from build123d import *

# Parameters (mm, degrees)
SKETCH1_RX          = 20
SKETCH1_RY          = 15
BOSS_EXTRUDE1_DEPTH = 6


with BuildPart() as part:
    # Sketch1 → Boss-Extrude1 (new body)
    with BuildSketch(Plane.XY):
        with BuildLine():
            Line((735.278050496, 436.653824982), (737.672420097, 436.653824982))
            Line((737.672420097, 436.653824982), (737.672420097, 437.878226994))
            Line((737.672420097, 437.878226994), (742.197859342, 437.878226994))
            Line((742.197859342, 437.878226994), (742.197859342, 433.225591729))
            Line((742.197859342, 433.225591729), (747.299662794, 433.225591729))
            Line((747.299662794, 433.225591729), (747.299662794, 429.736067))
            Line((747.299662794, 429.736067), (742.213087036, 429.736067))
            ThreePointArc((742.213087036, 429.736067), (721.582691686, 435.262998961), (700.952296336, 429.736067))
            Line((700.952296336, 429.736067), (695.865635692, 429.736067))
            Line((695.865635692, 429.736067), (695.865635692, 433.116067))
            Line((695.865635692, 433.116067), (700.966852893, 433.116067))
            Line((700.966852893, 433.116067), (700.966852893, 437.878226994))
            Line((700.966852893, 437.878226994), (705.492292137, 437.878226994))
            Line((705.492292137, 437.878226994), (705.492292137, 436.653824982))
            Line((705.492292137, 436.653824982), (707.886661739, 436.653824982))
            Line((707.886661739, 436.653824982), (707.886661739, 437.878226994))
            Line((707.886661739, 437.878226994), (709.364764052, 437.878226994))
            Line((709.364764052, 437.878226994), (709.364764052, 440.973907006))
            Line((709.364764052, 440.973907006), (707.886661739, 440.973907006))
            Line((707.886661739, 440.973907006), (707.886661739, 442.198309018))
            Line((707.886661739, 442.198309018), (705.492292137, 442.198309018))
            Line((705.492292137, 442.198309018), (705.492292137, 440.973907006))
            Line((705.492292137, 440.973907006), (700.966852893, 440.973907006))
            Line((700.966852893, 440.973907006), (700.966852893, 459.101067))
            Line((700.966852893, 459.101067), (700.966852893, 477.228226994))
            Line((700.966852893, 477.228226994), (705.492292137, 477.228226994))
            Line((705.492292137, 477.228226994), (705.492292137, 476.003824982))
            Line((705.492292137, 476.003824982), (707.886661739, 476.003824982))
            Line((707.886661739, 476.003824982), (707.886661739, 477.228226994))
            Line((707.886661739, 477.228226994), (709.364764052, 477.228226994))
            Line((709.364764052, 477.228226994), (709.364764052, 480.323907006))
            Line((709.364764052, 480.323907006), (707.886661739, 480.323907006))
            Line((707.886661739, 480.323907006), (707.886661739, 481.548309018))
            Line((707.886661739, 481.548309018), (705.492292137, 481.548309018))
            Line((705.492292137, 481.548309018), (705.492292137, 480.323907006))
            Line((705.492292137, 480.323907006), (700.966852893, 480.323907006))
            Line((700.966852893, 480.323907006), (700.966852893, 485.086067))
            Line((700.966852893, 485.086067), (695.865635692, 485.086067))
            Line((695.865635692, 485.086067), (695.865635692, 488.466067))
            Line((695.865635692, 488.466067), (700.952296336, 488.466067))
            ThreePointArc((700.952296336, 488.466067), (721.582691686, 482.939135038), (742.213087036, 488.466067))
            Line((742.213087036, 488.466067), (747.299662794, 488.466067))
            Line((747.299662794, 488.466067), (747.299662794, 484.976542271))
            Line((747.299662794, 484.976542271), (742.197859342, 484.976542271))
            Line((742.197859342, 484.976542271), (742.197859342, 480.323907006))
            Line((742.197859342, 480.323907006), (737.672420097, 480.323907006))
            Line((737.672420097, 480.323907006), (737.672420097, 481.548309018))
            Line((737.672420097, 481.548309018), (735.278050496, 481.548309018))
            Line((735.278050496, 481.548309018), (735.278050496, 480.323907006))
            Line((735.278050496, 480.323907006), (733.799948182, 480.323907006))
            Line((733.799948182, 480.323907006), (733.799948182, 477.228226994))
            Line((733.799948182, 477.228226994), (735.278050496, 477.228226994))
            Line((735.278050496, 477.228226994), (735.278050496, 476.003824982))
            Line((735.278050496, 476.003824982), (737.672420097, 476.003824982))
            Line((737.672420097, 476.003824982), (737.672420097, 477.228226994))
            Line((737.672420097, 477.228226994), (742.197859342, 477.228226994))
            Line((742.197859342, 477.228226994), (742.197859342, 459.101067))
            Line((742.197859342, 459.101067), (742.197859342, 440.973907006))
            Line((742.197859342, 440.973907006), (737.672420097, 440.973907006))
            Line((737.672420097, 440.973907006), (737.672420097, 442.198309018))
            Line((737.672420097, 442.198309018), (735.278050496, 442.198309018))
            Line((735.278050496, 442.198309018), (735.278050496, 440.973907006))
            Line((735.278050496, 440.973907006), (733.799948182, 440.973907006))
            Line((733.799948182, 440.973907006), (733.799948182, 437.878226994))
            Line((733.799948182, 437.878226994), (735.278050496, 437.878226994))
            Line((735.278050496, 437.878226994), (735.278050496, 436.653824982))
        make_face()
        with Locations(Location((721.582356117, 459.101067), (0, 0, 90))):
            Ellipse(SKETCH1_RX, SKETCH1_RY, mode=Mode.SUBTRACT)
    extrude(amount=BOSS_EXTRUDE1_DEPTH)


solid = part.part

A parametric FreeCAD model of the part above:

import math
import FreeCAD as App
import Part
import Sketcher
Q = App.Units.Quantity

doc = App.newDocument("Part")
params = doc.addObject("Spreadsheet::Sheet", "Params")
for row, (alias, value) in enumerate([
    ("sketch1_height", "3.38 mm"),
    ("pad1_length", "6 mm"),
], start=1):
    params.set(f"A{row}", alias)
    params.set(f"B{row}", "=" + value)
    params.setAlias(f"B{row}", alias)

body = doc.addObject("PartDesign::Body", "Body")

sketch1 = body.newObject("Sketcher::SketchObject", "Sketch")
sketch1.AttachmentSupport = (doc.getObject("XY_Plane"), [""])
sketch1.MapMode = "FlatFace"
sketch1.addGeometry([
    Part.LineSegment(App.Vector(737.67242, 436.653825, 0), App.Vector(735.27805, 436.653825, 0)),
    Part.LineSegment(App.Vector(735.27805, 436.653825, 0), App.Vector(735.27805, 437.878227, 0)),
    Part.LineSegment(App.Vector(735.27805, 437.878227, 0), App.Vector(733.799948, 437.878227, 0)),
    Part.LineSegment(App.Vector(733.799948, 437.878227, 0), App.Vector(733.799948, 440.973907, 0)),
    Part.LineSegment(App.Vector(733.799948, 440.973907, 0), App.Vector(735.27805, 440.973907, 0)),
    Part.LineSegment(App.Vector(735.27805, 440.973907, 0), App.Vector(735.27805, 442.198309, 0)),
    Part.LineSegment(App.Vector(735.27805, 442.198309, 0), App.Vector(737.67242, 442.198309, 0)),
    Part.LineSegment(App.Vector(737.67242, 442.198309, 0), App.Vector(737.67242, 440.973907, 0)),
    Part.LineSegment(App.Vector(737.67242, 440.973907, 0), App.Vector(742.197859, 440.973907, 0)),
    Part.LineSegment(App.Vector(742.197859, 440.973907, 0), App.Vector(742.197859, 477.228227, 0)),
    Part.LineSegment(App.Vector(742.197859, 477.228227, 0), App.Vector(737.67242, 477.228227, 0)),
    Part.LineSegment(App.Vector(737.67242, 477.228227, 0), App.Vector(737.67242, 476.003825, 0)),
    Part.LineSegment(App.Vector(737.67242, 476.003825, 0), App.Vector(735.27805, 476.003825, 0)),
    Part.LineSegment(App.Vector(735.27805, 476.003825, 0), App.Vector(735.27805, 477.228227, 0)),
    Part.LineSegment(App.Vector(735.27805, 477.228227, 0), App.Vector(733.799948, 477.228227, 0)),
    Part.LineSegment(App.Vector(733.799948, 477.228227, 0), App.Vector(733.799948, 480.323907, 0)),
    Part.LineSegment(App.Vector(733.799948, 480.323907, 0), App.Vector(735.27805, 480.323907, 0)),
    Part.LineSegment(App.Vector(735.27805, 480.323907, 0), App.Vector(735.27805, 481.548309, 0)),
    Part.LineSegment(App.Vector(735.27805, 481.548309, 0), App.Vector(737.67242, 481.548309, 0)),
    Part.LineSegment(App.Vector(737.67242, 481.548309, 0), App.Vector(737.67242, 480.323907, 0)),
    Part.LineSegment(App.Vector(737.67242, 480.323907, 0), App.Vector(742.197859, 480.323907, 0)),
    Part.LineSegment(App.Vector(742.197859, 480.323907, 0), App.Vector(742.197859, 484.976542, 0)),
    Part.LineSegment(App.Vector(742.197859, 484.976542, 0), App.Vector(747.299663, 484.976542, 0)),
    Part.LineSegment(App.Vector(747.299663, 484.976542, 0), App.Vector(747.299663, 488.466067, 0)),
    Part.LineSegment(App.Vector(747.299663, 488.466067, 0), App.Vector(742.213087, 488.466067, 0)),
    Part.ArcOfCircle(Part.Circle(App.Vector(721.582692, 524.20617, 0), App.Vector(0, 0, 1), 41.267035), math.radians(-119.994995), math.radians(-60.005005)),
    Part.LineSegment(App.Vector(700.952296, 488.466067, 0), App.Vector(695.865636, 488.466067, 0)),
    Part.LineSegment(App.Vector(695.865636, 488.466067, 0), App.Vector(695.865636, 485.086067, 0)),
    Part.LineSegment(App.Vector(695.865636, 485.086067, 0), App.Vector(700.966853, 485.086067, 0)),
    Part.LineSegment(App.Vector(700.966853, 485.086067, 0), App.Vector(700.966853, 480.323907, 0)),
    Part.LineSegment(App.Vector(700.966853, 480.323907, 0), App.Vector(705.492292, 480.323907, 0)),
    Part.LineSegment(App.Vector(705.492292, 480.323907, 0), App.Vector(705.492292, 481.548309, 0)),
    Part.LineSegment(App.Vector(705.492292, 481.548309, 0), App.Vector(707.886662, 481.548309, 0)),
    Part.LineSegment(App.Vector(707.886662, 481.548309, 0), App.Vector(707.886662, 480.323907, 0)),
    Part.LineSegment(App.Vector(707.886662, 480.323907, 0), App.Vector(709.364764, 480.323907, 0)),
    Part.LineSegment(App.Vector(709.364764, 480.323907, 0), App.Vector(709.364764, 477.228227, 0)),
    Part.LineSegment(App.Vector(709.364764, 477.228227, 0), App.Vector(707.886662, 477.228227, 0)),
    Part.LineSegment(App.Vector(707.886662, 477.228227, 0), App.Vector(707.886662, 476.003825, 0)),
    Part.LineSegment(App.Vector(707.886662, 476.003825, 0), App.Vector(705.492292, 476.003825, 0)),
    Part.LineSegment(App.Vector(705.492292, 476.003825, 0), App.Vector(705.492292, 477.228227, 0)),
    Part.LineSegment(App.Vector(705.492292, 477.228227, 0), App.Vector(700.966853, 477.228227, 0)),
    Part.LineSegment(App.Vector(700.966853, 477.228227, 0), App.Vector(700.966853, 440.973907, 0)),
    Part.LineSegment(App.Vector(700.966853, 440.973907, 0), App.Vector(705.492292, 440.973907, 0)),
    Part.LineSegment(App.Vector(705.492292, 440.973907, 0), App.Vector(705.492292, 442.198309, 0)),
    Part.LineSegment(App.Vector(705.492292, 442.198309, 0), App.Vector(707.886662, 442.198309, 0)),
    Part.LineSegment(App.Vector(707.886662, 442.198309, 0), App.Vector(707.886662, 440.973907, 0)),
    Part.LineSegment(App.Vector(707.886662, 440.973907, 0), App.Vector(709.364764, 440.973907, 0)),
    Part.LineSegment(App.Vector(709.364764, 440.973907, 0), App.Vector(709.364764, 437.878227, 0)),
    Part.LineSegment(App.Vector(709.364764, 437.878227, 0), App.Vector(707.886662, 437.878227, 0)),
    Part.LineSegment(App.Vector(707.886662, 437.878227, 0), App.Vector(707.886662, 436.653825, 0)),
    Part.LineSegment(App.Vector(707.886662, 436.653825, 0), App.Vector(705.492292, 436.653825, 0)),
    Part.LineSegment(App.Vector(705.492292, 436.653825, 0), App.Vector(705.492292, 437.878227, 0)),
    Part.LineSegment(App.Vector(705.492292, 437.878227, 0), App.Vector(700.966853, 437.878227, 0)),
    Part.LineSegment(App.Vector(700.966853, 437.878227, 0), App.Vector(700.966853, 433.116067, 0)),
    Part.LineSegment(App.Vector(700.966853, 433.116067, 0), App.Vector(695.865636, 433.116067, 0)),
    Part.LineSegment(App.Vector(695.865636, 433.116067, 0), App.Vector(695.865636, 429.736067, 0)),
    Part.LineSegment(App.Vector(695.865636, 429.736067, 0), App.Vector(700.952296, 429.736067, 0)),
    Part.ArcOfCircle(Part.Circle(App.Vector(721.582692, 393.995964, 0), App.Vector(0, 0, 1), 41.267035), math.radians(60.005005), math.radians(119.994995)),
    Part.LineSegment(App.Vector(742.213087, 429.736067, 0), App.Vector(747.299663, 429.736067, 0)),
    Part.LineSegment(App.Vector(747.299663, 429.736067, 0), App.Vector(747.299663, 433.225592, 0)),
    Part.LineSegment(App.Vector(747.299663, 433.225592, 0), App.Vector(742.197859, 433.225592, 0)),
    Part.LineSegment(App.Vector(742.197859, 433.225592, 0), App.Vector(742.197859, 437.878227, 0)),
    Part.LineSegment(App.Vector(742.197859, 437.878227, 0), App.Vector(737.67242, 437.878227, 0)),
    Part.LineSegment(App.Vector(737.67242, 437.878227, 0), App.Vector(737.67242, 436.653825, 0)),
    Part.Ellipse(App.Vector(721.582356, 479.101067, 0), App.Vector(706.582356, 459.101067, 0), App.Vector(721.582356, 459.101067, 0)),
], False)
sketch1.addConstraint([
    Sketcher.Constraint("Block", 64),
    Sketcher.Constraint("Coincident", 0, 2, 1, 1),
    Sketcher.Constraint("Coincident", 1, 2, 2, 1),
    Sketcher.Constraint("Coincident", 2, 2, 3, 1),
    Sketcher.Constraint("Coincident", 3, 2, 4, 1),
    Sketcher.Constraint("Coincident", 4, 2, 5, 1),
    Sketcher.Constraint("Coincident", 5, 2, 6, 1),
    Sketcher.Constraint("Coincident", 6, 2, 7, 1),
    Sketcher.Constraint("Coincident", 7, 2, 8, 1),
    Sketcher.Constraint("Coincident", 8, 2, 9, 1),
    Sketcher.Constraint("Coincident", 9, 2, 10, 1),
    Sketcher.Constraint("Coincident", 10, 2, 11, 1),
    Sketcher.Constraint("Coincident", 11, 2, 12, 1),
    Sketcher.Constraint("Coincident", 12, 2, 13, 1),
    Sketcher.Constraint("Coincident", 13, 2, 14, 1),
    Sketcher.Constraint("Coincident", 14, 2, 15, 1),
    Sketcher.Constraint("Coincident", 15, 2, 16, 1),
    Sketcher.Constraint("Coincident", 16, 2, 17, 1),
    Sketcher.Constraint("Coincident", 17, 2, 18, 1),
    Sketcher.Constraint("Coincident", 18, 2, 19, 1),
    Sketcher.Constraint("Coincident", 19, 2, 20, 1),
    Sketcher.Constraint("Coincident", 20, 2, 21, 1),
    Sketcher.Constraint("Coincident", 21, 2, 22, 1),
    Sketcher.Constraint("Coincident", 22, 2, 23, 1),
    Sketcher.Constraint("Coincident", 23, 2, 24, 1),
    Sketcher.Constraint("Coincident", 24, 2, 25, 2),
    Sketcher.Constraint("Coincident", 25, 1, 26, 1),
    Sketcher.Constraint("Coincident", 26, 2, 27, 1),
    Sketcher.Constraint("Coincident", 27, 2, 28, 1),
    Sketcher.Constraint("Coincident", 28, 2, 29, 1),
    Sketcher.Constraint("Coincident", 29, 2, 30, 1),
    Sketcher.Constraint("Coincident", 30, 2, 31, 1),
    Sketcher.Constraint("Coincident", 31, 2, 32, 1),
    Sketcher.Constraint("Coincident", 32, 2, 33, 1),
    Sketcher.Constraint("Coincident", 33, 2, 34, 1),
    Sketcher.Constraint("Coincident", 34, 2, 35, 1),
    Sketcher.Constraint("Coincident", 35, 2, 36, 1),
    Sketcher.Constraint("Coincident", 36, 2, 37, 1),
    Sketcher.Constraint("Coincident", 37, 2, 38, 1),
    Sketcher.Constraint("Coincident", 38, 2, 39, 1),
    Sketcher.Constraint("Coincident", 39, 2, 40, 1),
    Sketcher.Constraint("Coincident", 40, 2, 41, 1),
    Sketcher.Constraint("Coincident", 41, 2, 42, 1),
    Sketcher.Constraint("Coincident", 42, 2, 43, 1),
    Sketcher.Constraint("Coincident", 43, 2, 44, 1),
    Sketcher.Constraint("Coincident", 44, 2, 45, 1),
    Sketcher.Constraint("Coincident", 45, 2, 46, 1),
    Sketcher.Constraint("Coincident", 46, 2, 47, 1),
    Sketcher.Constraint("Coincident", 47, 2, 48, 1),
    Sketcher.Constraint("Coincident", 48, 2, 49, 1),
    Sketcher.Constraint("Coincident", 49, 2, 50, 1),
    Sketcher.Constraint("Coincident", 50, 2, 51, 1),
    Sketcher.Constraint("Coincident", 51, 2, 52, 1),
    Sketcher.Constraint("Coincident", 52, 2, 53, 1),
    Sketcher.Constraint("Coincident", 53, 2, 54, 1),
    Sketcher.Constraint("Coincident", 54, 2, 55, 1),
    Sketcher.Constraint("Coincident", 55, 2, 56, 1),
    Sketcher.Constraint("Coincident", 56, 2, 57, 2),
    Sketcher.Constraint("Coincident", 57, 1, 58, 1),
    Sketcher.Constraint("Coincident", 58, 2, 59, 1),
    Sketcher.Constraint("Coincident", 59, 2, 60, 1),
    Sketcher.Constraint("Coincident", 60, 2, 61, 1),
    Sketcher.Constraint("Coincident", 61, 2, 62, 1),
    Sketcher.Constraint("Coincident", 62, 2, 63, 1),
    Sketcher.Constraint("Coincident", 63, 2, 0, 1),
    Sketcher.Constraint("Horizontal", 0),
    Sketcher.Constraint("Vertical", 1),
    Sketcher.Constraint("Horizontal", 2),
    Sketcher.Constraint("Vertical", 3),
    Sketcher.Constraint("Horizontal", 4),
    Sketcher.Constraint("Vertical", 5),
    Sketcher.Constraint("Horizontal", 6),
    Sketcher.Constraint("Vertical", 7),
    Sketcher.Constraint("Horizontal", 8),
    Sketcher.Constraint("Vertical", 9),
    Sketcher.Constraint("Horizontal", 10),
    Sketcher.Constraint("Vertical", 11),
    Sketcher.Constraint("Horizontal", 12),
    Sketcher.Constraint("Vertical", 13),
    Sketcher.Constraint("Horizontal", 14),
    Sketcher.Constraint("Vertical", 15),
    Sketcher.Constraint("Horizontal", 16),
    Sketcher.Constraint("Vertical", 17),
    Sketcher.Constraint("Horizontal", 18),
    Sketcher.Constraint("Vertical", 19),
    Sketcher.Constraint("Horizontal", 20),
    Sketcher.Constraint("Vertical", 21),
    Sketcher.Constraint("Horizontal", 22),
    Sketcher.Constraint("Vertical", 23),
    Sketcher.Constraint("Horizontal", 24),
    Sketcher.Constraint("Horizontal", 26),
    Sketcher.Constraint("Vertical", 27),
    Sketcher.Constraint("Horizontal", 28),
    Sketcher.Constraint("Vertical", 29),
    Sketcher.Constraint("Horizontal", 30),
    Sketcher.Constraint("Vertical", 31),
    Sketcher.Constraint("Horizontal", 32),
    Sketcher.Constraint("Vertical", 33),
    Sketcher.Constraint("Horizontal", 34),
    Sketcher.Constraint("Vertical", 35),
    Sketcher.Constraint("Horizontal", 36),
    Sketcher.Constraint("Vertical", 37),
    Sketcher.Constraint("Horizontal", 38),
    Sketcher.Constraint("Vertical", 39),
    Sketcher.Constraint("Horizontal", 40),
    Sketcher.Constraint("Vertical", 41),
    Sketcher.Constraint("Horizontal", 42),
    Sketcher.Constraint("Vertical", 43),
    Sketcher.Constraint("Horizontal", 44),
    Sketcher.Constraint("Vertical", 45),
    Sketcher.Constraint("Horizontal", 46),
    Sketcher.Constraint("Vertical", 47),
    Sketcher.Constraint("Horizontal", 48),
    Sketcher.Constraint("Vertical", 49),
    Sketcher.Constraint("Horizontal", 50),
    Sketcher.Constraint("Vertical", 51),
    Sketcher.Constraint("Horizontal", 52),
    Sketcher.Constraint("Vertical", 53),
    Sketcher.Constraint("Horizontal", 54),
    Sketcher.Constraint("Vertical", 55),
    Sketcher.Constraint("Horizontal", 56),
    Sketcher.Constraint("Horizontal", 58),
    Sketcher.Constraint("Vertical", 59),
    Sketcher.Constraint("Horizontal", 60),
    Sketcher.Constraint("Vertical", 61),
    Sketcher.Constraint("Horizontal", 62),
    Sketcher.Constraint("Vertical", 63),
    Sketcher.Constraint("Equal", 25, 57),
    Sketcher.Constraint("Horizontal", 4, 2, 7, 2),
    Sketcher.Constraint("Horizontal", 10, 2, 13, 2),
    Sketcher.Constraint("Horizontal", 16, 2, 19, 2),
    Sketcher.Constraint("Horizontal", 24, 2, 25, 1),
    Sketcher.Constraint("Horizontal", 20, 2, 29, 2),
    Sketcher.Constraint("Horizontal", 18, 2, 31, 2),
    Sketcher.Constraint("Horizontal", 30, 2, 33, 2),
    Sketcher.Constraint("Horizontal", 14, 2, 35, 2),
    Sketcher.Constraint("Horizontal", 12, 2, 37, 2),
    Sketcher.Constraint("Horizontal", 36, 2, 39, 2),
    Sketcher.Constraint("Horizontal", 8, 2, 41, 2),
    Sketcher.Constraint("Horizontal", 6, 2, 43, 2),
    Sketcher.Constraint("Horizontal", 42, 2, 45, 2),
    Sketcher.Constraint("Horizontal", 2, 2, 47, 2),
    Sketcher.Constraint("Horizontal", 0, 2, 49, 2),
    Sketcher.Constraint("Horizontal", 48, 2, 51, 2),
    Sketcher.Constraint("Horizontal", 56, 2, 57, 1),
    Sketcher.Constraint("Horizontal", 52, 2, 61, 2),
    Sketcher.Constraint("Vertical", 25, 3, 57, 3),
    Sketcher.Constraint("Vertical", 1, 2, 4, 2),
    Sketcher.Constraint("Vertical", 7, 2, 10, 2),
    Sketcher.Constraint("Vertical", 5, 2, 12, 2),
    Sketcher.Constraint("Vertical", 3, 2, 14, 2),
    Sketcher.Constraint("Vertical", 13, 2, 16, 2),
    Sketcher.Constraint("Vertical", 11, 2, 18, 2),
    Sketcher.Constraint("Vertical", 9, 2, 20, 2),
    Sketcher.Constraint("Vertical", 33, 2, 36, 2),
    Sketcher.Constraint("Vertical", 31, 2, 38, 2),
    Sketcher.Constraint("Vertical", 29, 2, 40, 2),
    Sketcher.Constraint("Vertical", 39, 2, 42, 2),
    Sketcher.Constraint("Vertical", 37, 2, 44, 2),
    Sketcher.Constraint("Vertical", 35, 2, 46, 2),
    Sketcher.Constraint("Vertical", 45, 2, 48, 2),
    Sketcher.Constraint("Vertical", 43, 2, 50, 2),
    Sketcher.Constraint("Vertical", 41, 2, 52, 2),
    Sketcher.Constraint("Vertical", 27, 2, 54, 2),
    Sketcher.Constraint("Vertical", 25, 1, 56, 2),
    Sketcher.Constraint("Vertical", 23, 2, 58, 2),
    Sketcher.Constraint("Vertical", 21, 2, 60, 2),
    Sketcher.Constraint("Vertical", 19, 2, 62, 2),
    Sketcher.Constraint("Equal", 20, 30),
    Sketcher.Constraint("Equal", 18, 32),
    Sketcher.Constraint("Equal", 16, 34),
    Sketcher.Constraint("Equal", 1, 5),
    Sketcher.Constraint("Equal", 7, 11),
    Sketcher.Constraint("Equal", 3, 15),
    Sketcher.Constraint("Equal", 13, 17),
    Sketcher.Constraint("Equal", 29, 53),
    Sketcher.Constraint("Equal", 27, 55),
    Sketcher.Constraint("Equal", 23, 59),
    Sketcher.Constraint("DistanceY", 27, 2, 27, 1, Q("3.38 mm")),
    Sketcher.Constraint("Radius", 25, Q("41.267035 mm")),
    Sketcher.Constraint("DistanceX", 0, 2, 0, 1, Q("2.39437 mm")),
    Sketcher.Constraint("DistanceX", 8, 1, 8, 2, Q("4.525439 mm")),
    Sketcher.Constraint("DistanceX", 26, 2, 26, 1, Q("5.086661 mm")),
    Sketcher.Constraint("DistanceY", 3, 1, 3, 2, Q("3.09568 mm")),
    Sketcher.Constraint("DistanceY", 9, 1, 9, 2, Q("36.25432 mm")),
    Sketcher.Constraint("DistanceY", 29, 2, 29, 1, Q("4.76216 mm")),
    Sketcher.Constraint("DistanceX", 2, 2, 2, 1, Q("1.478102 mm")),
    Sketcher.Constraint("DistanceX", 22, 1, 22, 2, Q("5.101803 mm")),
    Sketcher.Constraint("DistanceX", 24, 2, 24, 1, Q("5.086576 mm")),
    Sketcher.Constraint("DistanceX", 28, 1, 28, 2, Q("5.101217 mm")),
    Sketcher.Constraint("DistanceY", 1, 1, 1, 2, Q("1.224402 mm")),
    Sketcher.Constraint("DistanceY", 21, 1, 21, 2, Q("4.652635 mm")),
    Sketcher.Constraint("DistanceX", -1, 1, 25, 3, Q("721.582692 mm")),
    Sketcher.Constraint("DistanceY", -1, 1, 25, 3, Q("524.20617 mm")),
    Sketcher.Constraint("DistanceX", -1, 1, 0, 2, Q("735.27805 mm")),
])
sketch1.setExpression("Constraints[178]", "Params.sketch1_height")
pad1 = body.newObject("PartDesign::Pad", "Pad")
pad1.Profile = sketch1
pad1.setExpression("Length", "Params.pad1_length")

doc.recompute()
